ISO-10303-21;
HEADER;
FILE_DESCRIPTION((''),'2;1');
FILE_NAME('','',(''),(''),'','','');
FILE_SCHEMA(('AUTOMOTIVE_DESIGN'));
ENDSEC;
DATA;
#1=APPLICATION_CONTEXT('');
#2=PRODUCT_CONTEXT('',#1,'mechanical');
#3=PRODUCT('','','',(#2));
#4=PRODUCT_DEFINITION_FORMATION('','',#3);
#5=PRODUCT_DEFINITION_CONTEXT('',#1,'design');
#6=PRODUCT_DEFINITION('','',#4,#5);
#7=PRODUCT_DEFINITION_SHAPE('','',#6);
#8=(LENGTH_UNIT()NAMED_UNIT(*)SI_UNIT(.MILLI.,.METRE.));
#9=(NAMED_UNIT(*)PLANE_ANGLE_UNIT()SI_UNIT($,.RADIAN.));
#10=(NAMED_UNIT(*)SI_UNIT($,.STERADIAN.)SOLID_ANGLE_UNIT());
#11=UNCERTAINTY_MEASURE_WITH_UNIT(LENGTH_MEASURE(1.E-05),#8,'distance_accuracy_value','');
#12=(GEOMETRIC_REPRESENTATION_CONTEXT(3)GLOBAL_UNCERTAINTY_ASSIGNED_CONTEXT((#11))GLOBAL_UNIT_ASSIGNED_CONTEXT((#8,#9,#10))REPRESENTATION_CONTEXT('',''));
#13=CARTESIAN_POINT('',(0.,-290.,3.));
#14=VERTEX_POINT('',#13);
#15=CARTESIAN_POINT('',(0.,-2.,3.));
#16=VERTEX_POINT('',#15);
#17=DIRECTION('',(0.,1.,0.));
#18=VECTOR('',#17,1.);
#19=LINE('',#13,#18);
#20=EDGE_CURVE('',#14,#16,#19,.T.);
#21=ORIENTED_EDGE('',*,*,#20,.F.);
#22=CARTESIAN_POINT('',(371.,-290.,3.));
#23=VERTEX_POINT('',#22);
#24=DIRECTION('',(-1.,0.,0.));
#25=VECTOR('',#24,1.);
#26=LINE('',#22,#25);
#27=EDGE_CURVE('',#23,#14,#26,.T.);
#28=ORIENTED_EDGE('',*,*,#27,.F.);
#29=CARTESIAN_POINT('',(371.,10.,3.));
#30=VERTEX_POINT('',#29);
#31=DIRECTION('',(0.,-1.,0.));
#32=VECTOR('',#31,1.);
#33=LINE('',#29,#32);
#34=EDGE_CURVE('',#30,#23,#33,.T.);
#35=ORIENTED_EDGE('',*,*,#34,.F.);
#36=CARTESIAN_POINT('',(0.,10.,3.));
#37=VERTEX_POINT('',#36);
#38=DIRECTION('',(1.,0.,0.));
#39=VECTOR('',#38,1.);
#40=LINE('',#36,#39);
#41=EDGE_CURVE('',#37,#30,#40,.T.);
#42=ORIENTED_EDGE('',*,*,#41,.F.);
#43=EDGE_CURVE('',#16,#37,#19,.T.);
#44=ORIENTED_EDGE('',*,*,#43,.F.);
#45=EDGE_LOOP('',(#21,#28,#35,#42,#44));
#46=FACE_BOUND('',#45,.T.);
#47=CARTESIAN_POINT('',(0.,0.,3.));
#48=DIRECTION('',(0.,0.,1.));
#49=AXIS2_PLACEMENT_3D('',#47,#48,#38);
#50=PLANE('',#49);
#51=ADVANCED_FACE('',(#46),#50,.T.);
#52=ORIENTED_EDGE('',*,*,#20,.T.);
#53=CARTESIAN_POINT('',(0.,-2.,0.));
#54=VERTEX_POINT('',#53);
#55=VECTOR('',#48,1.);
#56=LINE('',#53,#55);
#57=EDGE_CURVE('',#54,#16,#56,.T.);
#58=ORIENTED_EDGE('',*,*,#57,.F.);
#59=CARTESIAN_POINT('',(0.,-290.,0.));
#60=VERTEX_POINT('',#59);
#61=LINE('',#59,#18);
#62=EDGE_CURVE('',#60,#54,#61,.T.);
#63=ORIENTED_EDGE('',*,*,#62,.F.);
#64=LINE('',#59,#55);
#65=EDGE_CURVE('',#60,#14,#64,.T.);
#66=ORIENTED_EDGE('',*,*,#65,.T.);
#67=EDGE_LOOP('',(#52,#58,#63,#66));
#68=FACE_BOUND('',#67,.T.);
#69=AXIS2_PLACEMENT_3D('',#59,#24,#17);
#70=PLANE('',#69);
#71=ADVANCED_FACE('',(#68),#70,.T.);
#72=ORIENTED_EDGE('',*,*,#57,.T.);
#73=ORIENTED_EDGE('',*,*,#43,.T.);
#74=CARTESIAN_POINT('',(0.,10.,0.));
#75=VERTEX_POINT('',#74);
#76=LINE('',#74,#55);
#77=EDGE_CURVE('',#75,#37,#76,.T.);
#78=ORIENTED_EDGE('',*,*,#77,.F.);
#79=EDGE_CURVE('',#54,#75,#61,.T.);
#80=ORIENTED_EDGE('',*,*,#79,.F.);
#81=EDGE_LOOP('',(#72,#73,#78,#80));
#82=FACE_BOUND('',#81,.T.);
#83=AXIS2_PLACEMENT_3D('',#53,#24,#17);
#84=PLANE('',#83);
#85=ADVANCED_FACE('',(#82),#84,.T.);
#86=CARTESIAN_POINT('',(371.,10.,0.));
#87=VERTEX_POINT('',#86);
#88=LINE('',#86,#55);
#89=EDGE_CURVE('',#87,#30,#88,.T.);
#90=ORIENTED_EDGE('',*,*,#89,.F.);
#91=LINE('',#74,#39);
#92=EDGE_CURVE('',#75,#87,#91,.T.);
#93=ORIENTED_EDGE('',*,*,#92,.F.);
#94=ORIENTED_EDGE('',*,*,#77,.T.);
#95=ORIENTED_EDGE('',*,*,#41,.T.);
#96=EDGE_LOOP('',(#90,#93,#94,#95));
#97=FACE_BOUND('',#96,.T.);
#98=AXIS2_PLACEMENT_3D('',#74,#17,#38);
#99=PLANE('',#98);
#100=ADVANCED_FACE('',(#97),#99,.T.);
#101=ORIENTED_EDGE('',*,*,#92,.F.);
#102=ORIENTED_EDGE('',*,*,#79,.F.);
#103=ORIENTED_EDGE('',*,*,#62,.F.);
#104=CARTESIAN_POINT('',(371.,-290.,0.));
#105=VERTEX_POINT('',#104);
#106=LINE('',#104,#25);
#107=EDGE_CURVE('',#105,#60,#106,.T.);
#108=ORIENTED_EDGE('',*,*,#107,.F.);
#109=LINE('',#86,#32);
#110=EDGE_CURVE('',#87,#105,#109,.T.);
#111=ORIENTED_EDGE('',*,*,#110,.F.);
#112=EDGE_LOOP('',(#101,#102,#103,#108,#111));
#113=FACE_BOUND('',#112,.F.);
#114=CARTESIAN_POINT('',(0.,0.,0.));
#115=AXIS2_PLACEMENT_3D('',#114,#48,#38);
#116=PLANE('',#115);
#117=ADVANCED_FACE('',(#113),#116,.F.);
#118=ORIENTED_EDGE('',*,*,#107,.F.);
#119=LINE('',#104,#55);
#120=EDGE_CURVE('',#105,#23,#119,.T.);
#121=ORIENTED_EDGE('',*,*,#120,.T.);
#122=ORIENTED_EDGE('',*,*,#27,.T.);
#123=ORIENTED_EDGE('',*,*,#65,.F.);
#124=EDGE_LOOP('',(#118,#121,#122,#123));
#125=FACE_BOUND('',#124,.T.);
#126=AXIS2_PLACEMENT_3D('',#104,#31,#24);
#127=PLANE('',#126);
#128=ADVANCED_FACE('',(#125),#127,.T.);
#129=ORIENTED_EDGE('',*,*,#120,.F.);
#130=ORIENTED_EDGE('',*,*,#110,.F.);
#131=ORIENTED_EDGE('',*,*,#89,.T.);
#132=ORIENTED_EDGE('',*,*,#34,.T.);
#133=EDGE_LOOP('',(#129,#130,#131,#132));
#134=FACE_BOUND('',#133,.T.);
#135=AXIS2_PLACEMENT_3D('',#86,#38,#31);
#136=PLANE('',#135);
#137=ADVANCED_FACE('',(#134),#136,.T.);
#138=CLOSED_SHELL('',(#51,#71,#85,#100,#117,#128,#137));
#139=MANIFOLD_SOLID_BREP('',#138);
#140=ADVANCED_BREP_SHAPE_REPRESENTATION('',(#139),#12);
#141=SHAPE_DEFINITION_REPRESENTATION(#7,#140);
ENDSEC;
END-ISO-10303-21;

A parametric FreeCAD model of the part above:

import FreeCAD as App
import Part
import Sketcher
Q = App.Units.Quantity

doc = App.newDocument("Part")
body = doc.addObject("PartDesign::Body", "Body")

sketch1 = body.newObject("Sketcher::SketchObject", "Sketch")
sketch1.AttachmentSupport = (doc.getObject("XY_Plane"), [""])
sketch1.MapMode = "FlatFace"
sketch1.addGeometry(Part.LineSegment(App.Vector(371, 10, 0), App.Vector(0, 10, 0)), False)
sketch1.addGeometry(Part.LineSegment(App.Vector(0, 10, 0), App.Vector(0, -290, 0)), False)
sketch1.addGeometry(Part.LineSegment(App.Vector(0, -290, 0), App.Vector(371, -290, 0)), False)
sketch1.addGeometry(Part.LineSegment(App.Vector(371, -290, 0), App.Vector(371, 10, 0)), False)
sketch1.addConstraint(Sketcher.Constraint("Coincident", 0, 2, 1, 1))
sketch1.addConstraint(Sketcher.Constraint("Coincident", 1, 2, 2, 1))
sketch1.addConstraint(Sketcher.Constraint("Coincident", 2, 2, 3, 1))
sketch1.addConstraint(Sketcher.Constraint("Coincident", 3, 2, 0, 1))
sketch1.addConstraint(Sketcher.Constraint("Horizontal", 0))
sketch1.addConstraint(Sketcher.Constraint("Vertical", 1))
sketch1.addConstraint(Sketcher.Constraint("Horizontal", 2))
sketch1.addConstraint(Sketcher.Constraint("Vertical", 3))
sketch1.addConstraint(Sketcher.Constraint("PointOnObject", 0, 2, -2))
sketch1.addConstraint(Sketcher.Constraint("DistanceX", 0, 2, 0, 1, Q("371 mm")))
sketch1.addConstraint(Sketcher.Constraint("DistanceY", 1, 2, 1, 1, Q("300 mm")))
sketch1.addConstraint(Sketcher.Constraint("DistanceY", -1, 1, 0, 2, Q("10 mm")))
pad1 = body.newObject("PartDesign::Pad", "Pad")
pad1.Profile = sketch1
pad1.Length = 3

doc.recompute()
